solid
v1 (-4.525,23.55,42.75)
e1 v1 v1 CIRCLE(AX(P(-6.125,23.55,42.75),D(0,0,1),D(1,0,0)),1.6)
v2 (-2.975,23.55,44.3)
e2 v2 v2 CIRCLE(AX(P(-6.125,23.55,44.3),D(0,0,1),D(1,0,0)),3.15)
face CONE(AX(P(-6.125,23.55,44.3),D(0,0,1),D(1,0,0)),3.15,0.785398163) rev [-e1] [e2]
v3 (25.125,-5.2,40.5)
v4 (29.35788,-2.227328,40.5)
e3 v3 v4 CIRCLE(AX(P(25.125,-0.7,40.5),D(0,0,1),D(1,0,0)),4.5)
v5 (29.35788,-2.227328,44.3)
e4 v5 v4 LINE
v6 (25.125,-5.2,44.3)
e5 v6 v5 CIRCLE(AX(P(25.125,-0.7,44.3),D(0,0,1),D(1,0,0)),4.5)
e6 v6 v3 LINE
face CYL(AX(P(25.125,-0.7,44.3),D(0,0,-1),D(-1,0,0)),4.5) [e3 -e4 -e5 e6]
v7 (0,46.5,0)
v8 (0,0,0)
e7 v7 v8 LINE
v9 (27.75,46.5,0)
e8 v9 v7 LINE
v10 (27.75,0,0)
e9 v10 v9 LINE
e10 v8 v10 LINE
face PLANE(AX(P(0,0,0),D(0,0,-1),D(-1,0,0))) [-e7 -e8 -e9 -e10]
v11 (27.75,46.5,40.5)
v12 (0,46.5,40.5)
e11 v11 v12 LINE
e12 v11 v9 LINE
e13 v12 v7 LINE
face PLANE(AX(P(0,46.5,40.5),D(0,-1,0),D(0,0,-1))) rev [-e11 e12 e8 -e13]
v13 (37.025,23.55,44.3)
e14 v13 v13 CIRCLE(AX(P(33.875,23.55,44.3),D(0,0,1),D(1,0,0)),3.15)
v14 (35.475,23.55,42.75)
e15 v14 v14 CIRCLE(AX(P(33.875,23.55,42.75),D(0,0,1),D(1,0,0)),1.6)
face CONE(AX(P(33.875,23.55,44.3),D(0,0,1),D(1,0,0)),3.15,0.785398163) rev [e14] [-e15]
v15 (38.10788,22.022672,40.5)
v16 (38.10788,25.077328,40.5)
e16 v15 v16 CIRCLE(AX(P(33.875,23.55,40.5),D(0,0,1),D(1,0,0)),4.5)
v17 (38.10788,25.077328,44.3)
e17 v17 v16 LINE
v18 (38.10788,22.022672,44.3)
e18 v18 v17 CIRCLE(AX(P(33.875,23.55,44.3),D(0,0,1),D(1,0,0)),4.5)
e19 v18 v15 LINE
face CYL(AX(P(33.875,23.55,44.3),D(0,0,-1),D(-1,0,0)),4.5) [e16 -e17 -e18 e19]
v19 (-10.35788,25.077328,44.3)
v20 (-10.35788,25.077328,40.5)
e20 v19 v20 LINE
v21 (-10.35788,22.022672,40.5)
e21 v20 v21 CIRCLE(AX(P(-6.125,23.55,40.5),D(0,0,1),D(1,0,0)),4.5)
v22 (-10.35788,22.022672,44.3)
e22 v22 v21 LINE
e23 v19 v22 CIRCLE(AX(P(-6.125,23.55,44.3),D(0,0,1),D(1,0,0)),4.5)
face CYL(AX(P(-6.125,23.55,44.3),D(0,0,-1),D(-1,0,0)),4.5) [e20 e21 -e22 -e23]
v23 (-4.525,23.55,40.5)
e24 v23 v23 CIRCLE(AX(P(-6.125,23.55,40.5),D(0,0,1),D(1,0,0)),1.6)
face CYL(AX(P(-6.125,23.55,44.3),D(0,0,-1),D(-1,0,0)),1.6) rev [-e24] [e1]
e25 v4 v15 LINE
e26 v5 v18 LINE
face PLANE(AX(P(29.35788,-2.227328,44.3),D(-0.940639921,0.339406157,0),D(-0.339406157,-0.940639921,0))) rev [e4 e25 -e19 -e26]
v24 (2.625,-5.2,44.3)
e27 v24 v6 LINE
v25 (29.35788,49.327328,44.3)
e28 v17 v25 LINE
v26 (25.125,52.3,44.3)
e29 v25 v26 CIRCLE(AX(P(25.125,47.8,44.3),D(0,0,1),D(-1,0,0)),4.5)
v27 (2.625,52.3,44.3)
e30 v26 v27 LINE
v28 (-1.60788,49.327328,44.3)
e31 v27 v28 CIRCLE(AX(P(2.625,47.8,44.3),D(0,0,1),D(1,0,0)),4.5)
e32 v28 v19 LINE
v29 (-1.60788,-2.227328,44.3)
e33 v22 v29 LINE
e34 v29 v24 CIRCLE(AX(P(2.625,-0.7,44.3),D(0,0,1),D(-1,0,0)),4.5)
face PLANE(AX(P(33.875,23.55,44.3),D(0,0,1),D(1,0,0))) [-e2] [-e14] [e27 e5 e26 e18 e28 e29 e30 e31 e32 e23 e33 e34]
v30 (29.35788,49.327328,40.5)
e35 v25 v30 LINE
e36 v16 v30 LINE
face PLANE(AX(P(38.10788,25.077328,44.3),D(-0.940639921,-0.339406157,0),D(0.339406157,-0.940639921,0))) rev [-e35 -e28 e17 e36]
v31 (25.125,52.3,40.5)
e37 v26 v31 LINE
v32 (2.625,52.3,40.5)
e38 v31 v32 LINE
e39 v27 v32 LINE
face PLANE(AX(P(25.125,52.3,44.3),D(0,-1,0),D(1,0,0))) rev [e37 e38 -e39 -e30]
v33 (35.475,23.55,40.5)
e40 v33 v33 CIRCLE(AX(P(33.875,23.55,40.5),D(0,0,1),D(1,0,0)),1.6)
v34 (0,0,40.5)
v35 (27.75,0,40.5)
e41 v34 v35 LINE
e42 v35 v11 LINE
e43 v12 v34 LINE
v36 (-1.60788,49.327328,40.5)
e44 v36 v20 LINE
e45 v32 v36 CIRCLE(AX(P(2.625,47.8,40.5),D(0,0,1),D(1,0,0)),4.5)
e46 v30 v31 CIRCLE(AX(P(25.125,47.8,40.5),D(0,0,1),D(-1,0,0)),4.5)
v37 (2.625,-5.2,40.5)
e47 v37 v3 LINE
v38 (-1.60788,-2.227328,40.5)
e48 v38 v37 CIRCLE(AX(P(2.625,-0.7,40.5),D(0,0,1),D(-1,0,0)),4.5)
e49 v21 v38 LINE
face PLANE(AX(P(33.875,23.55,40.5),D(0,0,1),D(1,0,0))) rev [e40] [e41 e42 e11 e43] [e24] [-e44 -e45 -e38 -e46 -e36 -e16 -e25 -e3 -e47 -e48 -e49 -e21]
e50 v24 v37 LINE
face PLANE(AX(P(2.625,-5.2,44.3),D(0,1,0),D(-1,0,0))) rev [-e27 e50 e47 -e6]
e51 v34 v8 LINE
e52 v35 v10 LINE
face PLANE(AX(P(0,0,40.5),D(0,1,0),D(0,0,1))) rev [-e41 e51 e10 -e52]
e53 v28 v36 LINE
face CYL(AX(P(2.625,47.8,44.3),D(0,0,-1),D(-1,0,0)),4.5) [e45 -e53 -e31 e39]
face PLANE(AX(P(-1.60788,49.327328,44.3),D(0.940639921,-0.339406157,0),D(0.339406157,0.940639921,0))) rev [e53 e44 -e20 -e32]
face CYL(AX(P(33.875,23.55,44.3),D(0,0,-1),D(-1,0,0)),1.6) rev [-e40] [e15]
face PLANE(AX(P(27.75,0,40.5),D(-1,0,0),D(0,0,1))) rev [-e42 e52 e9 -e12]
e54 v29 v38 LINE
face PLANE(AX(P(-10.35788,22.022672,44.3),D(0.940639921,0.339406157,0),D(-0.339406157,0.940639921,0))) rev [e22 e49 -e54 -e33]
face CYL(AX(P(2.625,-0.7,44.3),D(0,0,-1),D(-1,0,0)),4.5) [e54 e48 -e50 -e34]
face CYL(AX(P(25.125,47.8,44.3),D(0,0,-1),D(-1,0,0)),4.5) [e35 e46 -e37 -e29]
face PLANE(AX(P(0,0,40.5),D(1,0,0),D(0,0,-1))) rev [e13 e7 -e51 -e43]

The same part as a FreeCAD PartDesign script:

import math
import FreeCAD as App
import Part
import Sketcher
Q = App.Units.Quantity

doc = App.newDocument("Part")
params = doc.addObject("Spreadsheet::Sheet", "Params")
for row, (alias, value) in enumerate([
    ("sketch1_height", "46.5 mm"),
    ("sketch1_width", "27.75 mm"),
    ("pad1_length", "40.5 mm"),
    ("sketch2_diameter", "3.2 mm"),
    ("sketch2_radius", "4.5 mm"),
    ("sketch2_width", "22.5 mm"),
    ("pad2_length", "3.8 mm"),
    ("sketch3_diameter", "3.2 mm"),
    ("hole_diameter", "3.2 mm"),
    ("hole_csink_diameter", "6.3 mm"),
], start=1):
    params.set(f"A{row}", alias)
    params.set(f"B{row}", "=" + value)
    params.setAlias(f"B{row}", alias)

body = doc.addObject("PartDesign::Body", "Body")

sketch1 = doc.addObject("Sketcher::SketchObject", "Sketch")
body.addObject(sketch1)
sketch1.AttachmentSupport = (doc.XY_Plane, [""])
sketch1.MapMode = "FlatFace"
sketch1.addGeometry(Part.LineSegment(App.Vector(0, 46, 0), App.Vector(0, 0, 0)), False)
sketch1.addGeometry(Part.LineSegment(App.Vector(0, 0, 0), App.Vector(28, 0, 0)), False)
sketch1.addGeometry(Part.LineSegment(App.Vector(28, 0, 0), App.Vector(28, 46, 0)), False)
sketch1.addGeometry(Part.LineSegment(App.Vector(28, 46, 0), App.Vector(0, 46, 0)), False)
sketch1.addConstraint(Sketcher.Constraint("Coincident", 0, 2, 1, 1))
sketch1.addConstraint(Sketcher.Constraint("Coincident", 1, 2, 2, 1))
sketch1.addConstraint(Sketcher.Constraint("Coincident", 2, 2, 3, 1))
sketch1.addConstraint(Sketcher.Constraint("Coincident", 3, 2, 0, 1))
sketch1.addConstraint(Sketcher.Constraint("Vertical", 0))
sketch1.addConstraint(Sketcher.Constraint("Horizontal", 1))
sketch1.addConstraint(Sketcher.Constraint("Vertical", 2))
sketch1.addConstraint(Sketcher.Constraint("Horizontal", 3))
sketch1.addConstraint(Sketcher.Constraint("Coincident", 0, 2, -1, 1))
sketch1.addConstraint(Sketcher.Constraint("DistanceY", 0, 2, 0, 1, Q("46.5 mm")))
sketch1.addConstraint(Sketcher.Constraint("DistanceX", 1, 1, 1, 2, Q("27.75 mm")))
sketch1.setExpression("Constraints[9]", "Params.sketch1_height")
sketch1.setExpression("Constraints[10]", "Params.sketch1_width")
pad1 = doc.addObject("PartDesign::Pad", "Pad")
body.addObject(pad1)
pad1.Profile = sketch1
pad1.setExpression("Length", "Params.pad1_length")

sketch2 = doc.addObject("Sketcher::SketchObject", "Sketch001")
body.addObject(sketch2)
sketch2.AttachmentSupport = (doc.XY_Plane, [""])
sketch2.MapMode = "FlatFace"
sketch2.AttachmentOffset = App.Placement(App.Vector(0, 0, 40.5), App.Rotation())
sketch2.addGeometry(Part.LineSegment(App.Vector(2.6, -5.2, 0), App.Vector(25.1, -5.2, 0)), False)
sketch2.addGeometry(Part.ArcOfCircle(Part.Circle(App.Vector(25.1, -0.7, 0), App.Vector(0, 0, 1), 4.5), math.radians(-90), math.radians(-20)), False)
sketch2.addGeometry(Part.LineSegment(App.Vector(29.4, -2.2, 0), App.Vector(38.1, 22, 0)), False)
sketch2.addGeometry(Part.ArcOfCircle(Part.Circle(App.Vector(33.9, 23.6, 0), App.Vector(0, 0, 1), 4.5), math.radians(-20), math.radians(20)), False)
sketch2.addGeometry(Part.LineSegment(App.Vector(38.1, 25.1, 0), App.Vector(29.4, 49.3, 0)), False)
sketch2.addGeometry(Part.ArcOfCircle(Part.Circle(App.Vector(25.1, 47.8, 0), App.Vector(0, 0, 1), 4.5), math.radians(20), math.radians(90)), False)
sketch2.addGeometry(Part.LineSegment(App.Vector(25.1, 52.3, 0), App.Vector(2.6, 52.3, 0)), False)
sketch2.addGeometry(Part.ArcOfCircle(Part.Circle(App.Vector(2.6, 47.8, 0), App.Vector(0, 0, 1), 4.5), math.radians(90), math.radians(160)), False)
sketch2.addGeometry(Part.LineSegment(App.Vector(-1.6, 49.3, 0), App.Vector(-10.4, 25.1, 0)), False)
sketch2.addGeometry(Part.ArcOfCircle(Part.Circle(App.Vector(-6.1, 23.6, 0), App.Vector(0, 0, 1), 4.5), math.radians(160), math.radians(200)), False)
sketch2.addGeometry(Part.LineSegment(App.Vector(-10.4, 22, 0), App.Vector(-1.6, -2.2, 0)), False)
sketch2.addGeometry(Part.ArcOfCircle(Part.Circle(App.Vector(2.6, -0.7, 0), App.Vector(0, 0, 1), 4.5), math.radians(-160), math.radians(-90)), False)
sketch2.addGeometry(Part.Circle(App.Vector(-6.1, 23.6, 0), App.Vector(0, 0, 1), 1.6), False)
sketch2.addGeometry(Part.Circle(App.Vector(33.9, 23.6, 0), App.Vector(0, 0, 1), 1.6), False)
sketch2.addConstraint(Sketcher.Constraint("Tangent", 0, 2, 1, 1))
sketch2.addConstraint(Sketcher.Constraint("Tangent", 1, 2, 2, 1))
sketch2.addConstraint(Sketcher.Constraint("Tangent", 2, 2, 3, 1))
sketch2.addConstraint(Sketcher.Constraint("Tangent", 3, 2, 4, 1))
sketch2.addConstraint(Sketcher.Constraint("Tangent", 4, 2, 5, 1))
sketch2.addConstraint(Sketcher.Constraint("Tangent", 5, 2, 6, 1))
sketch2.addConstraint(Sketcher.Constraint("Tangent", 6, 2, 7, 1))
sketch2.addConstraint(Sketcher.Constraint("Tangent", 7, 2, 8, 1))
sketch2.addConstraint(Sketcher.Constraint("Tangent", 8, 2, 9, 1))
sketch2.addConstraint(Sketcher.Constraint("Tangent", 9, 2, 10, 1))
sketch2.addConstraint(Sketcher.Constraint("Tangent", 10, 2, 11, 1))
sketch2.addConstraint(Sketcher.Constraint("Tangent", 11, 2, 0, 1))
sketch2.addConstraint(Sketcher.Constraint("Horizontal", 0))
sketch2.addConstraint(Sketcher.Constraint("Horizontal", 6))
sketch2.addConstraint(Sketcher.Constraint("Coincident", 12, 3, 9, 3))
sketch2.addConstraint(Sketcher.Constraint("Coincident", 13, 3, 3, 3))
sketch2.addConstraint(Sketcher.Constraint("Equal", 1, 3))
sketch2.addConstraint(Sketcher.Constraint("Equal", 3, 5))
sketch2.addConstraint(Sketcher.Constraint("Equal", 5, 7))
sketch2.addConstraint(Sketcher.Constraint("Equal", 7, 9))
sketch2.addConstraint(Sketcher.Constraint("Equal", 9, 11))
sketch2.addConstraint(Sketcher.Constraint("Equal", 12, 13))
sketch2.addConstraint(Sketcher.Constraint("Parallel", 2, 8))
sketch2.addConstraint(Sketcher.Constraint("Parallel", 4, 10))
sketch2.addConstraint(Sketcher.Constraint("Horizontal", 3, 3, 9, 3))
sketch2.addConstraint(Sketcher.Constraint("Horizontal", 4, 2, 7, 2))
sketch2.addConstraint(Sketcher.Constraint("Vertical", 1, 3, 5, 3))
sketch2.addConstraint(Sketcher.Constraint("Diameter", 12, Q("3.2 mm")))
sketch2.addConstraint(Sketcher.Constraint("Radius", 1, Q("4.5 mm")))
sketch2.addConstraint(Sketcher.Constraint("DistanceX", 0, 1, 0, 2, Q("22.5 mm")))
sketch2.addConstraint(Sketcher.Constraint("DistanceX", 9, 3, 3, 3, Q("40 mm")))
sketch2.addConstraint(Sketcher.Constraint("DistanceY", 1, 3, -1, 1, Q("0.7 mm")))
sketch2.addConstraint(Sketcher.Constraint("DistanceY", -1, 1, 5, 3, Q("47.8 mm")))
sketch2.addConstraint(Sketcher.Constraint("DistanceX", -1, 1, 1, 3, Q("25.125 mm")))
sketch2.setExpression("Constraints[27]", "Params.sketch2_diameter")
sketch2.setExpression("Constraints[28]", "Params.sketch2_radius")
sketch2.setExpression("Constraints[29]", "Params.sketch2_width")
pad2 = doc.addObject("PartDesign::Pad", "Pad001")
body.addObject(pad2)
pad2.Profile = sketch2
pad2.setExpression("Length", "Params.pad2_length")

sketch3 = doc.addObject("Sketcher::SketchObject", "Sketch002")
body.addObject(sketch3)
sketch3.AttachmentSupport = (doc.XY_Plane, [""])
sketch3.MapMode = "FlatFace"
sketch3.AttachmentOffset = App.Placement(App.Vector(0, 0, 44.3), App.Rotation())
sketch3.addGeometry(Part.Circle(App.Vector(-6.1, 23.6, 0), App.Vector(0, 0, 1), 1.6), False)
sketch3.addGeometry(Part.Circle(App.Vector(33.9, 23.6, 0), App.Vector(0, 0, 1), 1.6), False)
sketch3.addConstraint(Sketcher.Constraint("Equal", 0, 1))
sketch3.addConstraint(Sketcher.Constraint("Horizontal", 0, 3, 1, 3))
sketch3.addConstraint(Sketcher.Constraint("Diameter", 0, Q("3.2 mm")))
sketch3.addConstraint(Sketcher.Constraint("DistanceX", 0, 3, 1, 3, Q("40 mm")))
sketch3.addConstraint(Sketcher.Constraint("DistanceY", -1, 1, 0, 3, Q("23.55 mm")))
sketch3.addConstraint(Sketcher.Constraint("DistanceX", 0, 3, -1, 1, Q("6.125 mm")))
sketch3.setExpression("Constraints[2]", "Params.sketch3_diameter")
doc.recompute()
hole = doc.addObject("PartDesign::Hole", "Hole")
body.addObject(hole)
hole.Profile = sketch3
hole.ThreadType = "None"
hole.setExpression("Diameter", "Params.hole_diameter")
hole.DepthType = "ThroughAll"
hole.HoleCutType = "Countersink"
hole.setExpression("HoleCutDiameter", "Params.hole_csink_diameter")
hole.HoleCutCountersinkAngle = 90

doc.recompute()
